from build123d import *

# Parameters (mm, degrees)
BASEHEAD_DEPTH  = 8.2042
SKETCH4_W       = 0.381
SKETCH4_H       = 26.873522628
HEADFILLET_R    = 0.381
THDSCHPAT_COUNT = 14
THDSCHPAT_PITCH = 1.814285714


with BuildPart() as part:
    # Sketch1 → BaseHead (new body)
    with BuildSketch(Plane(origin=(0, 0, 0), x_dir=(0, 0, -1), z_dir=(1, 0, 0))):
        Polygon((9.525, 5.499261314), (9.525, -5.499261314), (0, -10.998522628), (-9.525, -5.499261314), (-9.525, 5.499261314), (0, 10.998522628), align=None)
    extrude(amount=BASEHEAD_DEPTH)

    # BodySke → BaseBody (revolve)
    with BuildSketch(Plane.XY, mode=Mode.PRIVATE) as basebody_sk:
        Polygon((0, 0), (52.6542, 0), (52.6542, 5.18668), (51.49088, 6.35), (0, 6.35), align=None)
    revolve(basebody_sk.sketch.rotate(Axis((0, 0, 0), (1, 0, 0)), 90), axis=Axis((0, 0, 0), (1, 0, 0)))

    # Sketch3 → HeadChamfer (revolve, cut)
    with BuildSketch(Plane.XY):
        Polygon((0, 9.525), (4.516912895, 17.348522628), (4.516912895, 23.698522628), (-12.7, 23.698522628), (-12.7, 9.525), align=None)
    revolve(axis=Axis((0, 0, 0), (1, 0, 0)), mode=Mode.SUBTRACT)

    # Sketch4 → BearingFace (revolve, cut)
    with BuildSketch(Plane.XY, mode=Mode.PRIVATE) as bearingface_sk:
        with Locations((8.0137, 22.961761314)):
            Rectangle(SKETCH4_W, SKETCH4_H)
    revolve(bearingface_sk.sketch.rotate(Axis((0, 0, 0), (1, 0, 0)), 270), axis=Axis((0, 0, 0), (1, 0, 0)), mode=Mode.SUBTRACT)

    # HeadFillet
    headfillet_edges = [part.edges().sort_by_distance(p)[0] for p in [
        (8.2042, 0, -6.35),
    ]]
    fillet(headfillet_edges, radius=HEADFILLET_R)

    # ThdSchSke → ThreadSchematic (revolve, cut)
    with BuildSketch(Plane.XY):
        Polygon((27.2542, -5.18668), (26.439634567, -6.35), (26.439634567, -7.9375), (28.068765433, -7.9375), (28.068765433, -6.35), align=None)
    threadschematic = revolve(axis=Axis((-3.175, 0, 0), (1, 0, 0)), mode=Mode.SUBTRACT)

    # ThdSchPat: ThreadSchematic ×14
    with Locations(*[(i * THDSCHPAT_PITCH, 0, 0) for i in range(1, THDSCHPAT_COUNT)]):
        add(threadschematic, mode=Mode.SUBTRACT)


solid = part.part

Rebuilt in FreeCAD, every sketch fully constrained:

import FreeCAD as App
import Part
import Sketcher
from FreeCAD import Vector
Q = App.Units.Quantity


def edges_at(feature, points):
    """Names of the edges that pass closest to the given points."""
    edges = feature.Shape.Edges
    near = lambda p: min(range(len(edges)), key=lambda i: edges[i].distToShape(Part.Vertex(*p))[0])
    return sorted({f"Edge{near(p) + 1}" for p in points})


def add_polygon(sketch, points):
    """Adds a closed chain of lines whose ends are joined by coincident constraints."""
    first, n = sketch.GeometryCount, len(points)
    for a, b in zip(points, points[1:] + points[:1]):
        sketch.addGeometry(Part.LineSegment(App.Vector(*a, 0), App.Vector(*b, 0)), False)
    for i in range(n):
        sketch.addConstraint(Sketcher.Constraint("Coincident", first + i, 2, first + (i + 1) % n, 1))

doc = App.newDocument("Part")
body = doc.addObject("PartDesign::Body", "Body")

# Sketch on YZ plane
sketch1 = doc.addObject("Sketcher::SketchObject", "Sketch")
body.addObject(sketch1)
sketch1.AttachmentSupport = (doc.YZ_Plane, [""])
sketch1.MapMode = "FlatFace"
add_polygon(sketch1, [(-5.499261, -9.525), (5.499261, -9.525), (10.998523, 0), (5.499261, 9.525), (-5.499261, 9.525), (-10.998523, 0)])  # lines 0-5
sketch1.addConstraint([
    Sketcher.Constraint("Horizontal", 0),
    Sketcher.Constraint("Horizontal", 3),
    Sketcher.Constraint("Symmetric", 0, 2, 3, 2, -1, 1),
    Sketcher.Constraint("Symmetric", 1, 2, 4, 2, -1, 1),
    Sketcher.Constraint("PointOnObject", 1, 2, -1),
    Sketcher.Constraint("Parallel", 2, 5),
    Sketcher.Constraint("Vertical", 0, 2, 2, 2),
    Sketcher.Constraint("Angle", 1, Q("60 deg")),
    Sketcher.Constraint("DistanceY", 0, 2, 2, 2, Q("0.75 in")),
    Sketcher.Constraint("DistanceX", 0, 1, 0, 2, 10.998523),
])
pad1 = doc.addObject("PartDesign::Pad", "Pad")
body.addObject(pad1)
pad1.Profile = sketch1
pad1.Length = Q("0.323 in")

# Sketch on XY plane
sketch2 = doc.addObject("Sketcher::SketchObject", "Sketch001")
body.addObject(sketch2)
sketch2.AttachmentSupport = (doc.XY_Plane, [""])
sketch2.MapMode = "FlatFace"
add_polygon(sketch2, [(0, 0), (52.6542, 0), (52.6542, 5.18668), (51.49088, 6.35), (0, 6.35)])  # lines 0-4
sketch2.addConstraint([
    Sketcher.Constraint("Horizontal", 0),
    Sketcher.Constraint("Vertical", 1),
    Sketcher.Constraint("Horizontal", 3),
    Sketcher.Constraint("Vertical", 4),
    Sketcher.Constraint("Coincident", 4, 2, -1, 1),
    Sketcher.Constraint("Angle", 2, Q("135 deg")),
    Sketcher.Constraint("DistanceY", 4, 2, 4, 1, Q("0.25 in")),
    Sketcher.Constraint("DistanceX", 0, 1, 0, 2, Q("2.073 in")),
    Sketcher.Constraint("DistanceX", 3, 2, 3, 1, Q("2.0272 in")),
])
revolution = doc.addObject("PartDesign::Revolution", "Revolution")
body.addObject(revolution)
revolution.Profile = sketch2
revolution.ReferenceAxis = (sketch2, ["H_Axis"])
revolution.Angle = 360

# Sketch on XY plane
sketch3 = doc.addObject("Sketcher::SketchObject", "Sketch002")
body.addObject(sketch3)
sketch3.AttachmentSupport = (doc.XY_Plane, [""])
sketch3.MapMode = "FlatFace"
add_polygon(sketch3, [(0, 9.525), (4.516913, 17.348523), (4.516913, 23.698523), (-12.7, 23.698523), (-12.7, 9.525)])  # lines 0-4
sketch3.addConstraint([
    Sketcher.Constraint("Vertical", 1),
    Sketcher.Constraint("Horizontal", 2),
    Sketcher.Constraint("Vertical", 3),
    Sketcher.Constraint("Horizontal", 4),
    Sketcher.Constraint("PointOnObject", 4, 2, -2),
    Sketcher.Constraint("DistanceX", 4, 1, 4, 2, Q("0.5 in")),
    Sketcher.Constraint("Angle", 0, Q("60 deg")),
    Sketcher.Constraint("DistanceY", 1, 1, 1, 2, Q("0.25 in")),
    Sketcher.Constraint("DistanceY", -1, 1, 3, 2, Q("0.375 in")),
    Sketcher.Constraint("DistanceX", 2, 2, 2, 1, 17.216913),
])
groove = doc.addObject("PartDesign::Groove", "Groove")
body.addObject(groove)
groove.Profile = sketch3
groove.ReferenceAxis = (sketch3, ["H_Axis"])
groove.Angle = 360

# Sketch on XY plane
sketch4 = doc.addObject("Sketcher::SketchObject", "Sketch003")
body.addObject(sketch4)
sketch4.AttachmentSupport = (doc.XY_Plane, [""])
sketch4.MapMode = "FlatFace"
add_polygon(sketch4, [(7.8232, 36.398523), (7.8232, 9.525), (8.2042, 9.525), (8.2042, 36.398523)])  # lines 0-3
sketch4.addConstraint([
    Sketcher.Constraint("Vertical", 0),
    Sketcher.Constraint("Horizontal", 1),
    Sketcher.Constraint("Vertical", 2),
    Sketcher.Constraint("Horizontal", 3),
    Sketcher.Constraint("DistanceX", 1, 1, 1, 2, Q("0.015 in")),
    Sketcher.Constraint("DistanceX", -1, 1, 0, 2, Q("0.308 in")),
    Sketcher.Constraint("DistanceY", -1, 1, 0, 2, Q("0.375 in")),
    Sketcher.Constraint("DistanceY", 0, 2, 0, 1, 26.873523),
])
groove2 = doc.addObject("PartDesign::Groove", "Groove001")
body.addObject(groove2)
groove2.Profile = sketch4
groove2.ReferenceAxis = (sketch4, ["H_Axis"])
groove2.Angle = 360
doc.recompute()

fillet = doc.addObject("PartDesign::Fillet", "Fillet")
body.addObject(fillet)
fillet.Base = (groove2, edges_at(groove2, [(8.204, 0, -6.35)]))
fillet.Radius = Q("0.015 in")

# Sketch on XY plane
sketch5 = doc.addObject("Sketcher::SketchObject", "Sketch004")
body.addObject(sketch5)
sketch5.AttachmentSupport = (doc.XY_Plane, [""])
sketch5.MapMode = "FlatFace"
add_polygon(sketch5, [(27.2542, -5.18668), (26.439635, -6.35), (26.439635, -7.9375), (28.068765, -7.9375), (28.068765, -6.35)])  # lines 0-4
sketch5.addConstraint([
    Sketcher.Constraint("Vertical", 1),
    Sketcher.Constraint("Horizontal", 2),
    Sketcher.Constraint("Vertical", 3),
    Sketcher.Constraint("Horizontal", 0, 2, 3, 2),
    Sketcher.Constraint("Equal", 0, 4),
    Sketcher.Constraint("Angle", 0, Q("-125 deg")),
    Sketcher.Constraint("DistanceY", 1, 2, 1, 1, Q("0.0625 in")),
    Sketcher.Constraint("DistanceY", 0, 2, -1, 1, Q("0.25 in")),
    Sketcher.Constraint("DistanceX", -1, 1, 4, 2, Q("1.073 in")),
    Sketcher.Constraint("DistanceY", 4, 2, -1, 1, Q("0.2042 in")),
])
groove3 = doc.addObject("PartDesign::Groove", "Groove002")
body.addObject(groove3)
groove3.Profile = sketch5
groove3.ReferenceAxis = (sketch5, ["H_Axis"])
groove3.Angle = 360
doc.recompute()

linearpattern = doc.addObject("PartDesign::LinearPattern", "LinearPattern")
body.addObject(linearpattern)
linearpattern.Originals = [groove3]
linearpattern.Direction = (doc.X_Axis, [""])
linearpattern.Mode = "offset"
linearpattern.Offset = 1.814286
linearpattern.Occurrences = 14
body.Tip = linearpattern

doc.recompute()
